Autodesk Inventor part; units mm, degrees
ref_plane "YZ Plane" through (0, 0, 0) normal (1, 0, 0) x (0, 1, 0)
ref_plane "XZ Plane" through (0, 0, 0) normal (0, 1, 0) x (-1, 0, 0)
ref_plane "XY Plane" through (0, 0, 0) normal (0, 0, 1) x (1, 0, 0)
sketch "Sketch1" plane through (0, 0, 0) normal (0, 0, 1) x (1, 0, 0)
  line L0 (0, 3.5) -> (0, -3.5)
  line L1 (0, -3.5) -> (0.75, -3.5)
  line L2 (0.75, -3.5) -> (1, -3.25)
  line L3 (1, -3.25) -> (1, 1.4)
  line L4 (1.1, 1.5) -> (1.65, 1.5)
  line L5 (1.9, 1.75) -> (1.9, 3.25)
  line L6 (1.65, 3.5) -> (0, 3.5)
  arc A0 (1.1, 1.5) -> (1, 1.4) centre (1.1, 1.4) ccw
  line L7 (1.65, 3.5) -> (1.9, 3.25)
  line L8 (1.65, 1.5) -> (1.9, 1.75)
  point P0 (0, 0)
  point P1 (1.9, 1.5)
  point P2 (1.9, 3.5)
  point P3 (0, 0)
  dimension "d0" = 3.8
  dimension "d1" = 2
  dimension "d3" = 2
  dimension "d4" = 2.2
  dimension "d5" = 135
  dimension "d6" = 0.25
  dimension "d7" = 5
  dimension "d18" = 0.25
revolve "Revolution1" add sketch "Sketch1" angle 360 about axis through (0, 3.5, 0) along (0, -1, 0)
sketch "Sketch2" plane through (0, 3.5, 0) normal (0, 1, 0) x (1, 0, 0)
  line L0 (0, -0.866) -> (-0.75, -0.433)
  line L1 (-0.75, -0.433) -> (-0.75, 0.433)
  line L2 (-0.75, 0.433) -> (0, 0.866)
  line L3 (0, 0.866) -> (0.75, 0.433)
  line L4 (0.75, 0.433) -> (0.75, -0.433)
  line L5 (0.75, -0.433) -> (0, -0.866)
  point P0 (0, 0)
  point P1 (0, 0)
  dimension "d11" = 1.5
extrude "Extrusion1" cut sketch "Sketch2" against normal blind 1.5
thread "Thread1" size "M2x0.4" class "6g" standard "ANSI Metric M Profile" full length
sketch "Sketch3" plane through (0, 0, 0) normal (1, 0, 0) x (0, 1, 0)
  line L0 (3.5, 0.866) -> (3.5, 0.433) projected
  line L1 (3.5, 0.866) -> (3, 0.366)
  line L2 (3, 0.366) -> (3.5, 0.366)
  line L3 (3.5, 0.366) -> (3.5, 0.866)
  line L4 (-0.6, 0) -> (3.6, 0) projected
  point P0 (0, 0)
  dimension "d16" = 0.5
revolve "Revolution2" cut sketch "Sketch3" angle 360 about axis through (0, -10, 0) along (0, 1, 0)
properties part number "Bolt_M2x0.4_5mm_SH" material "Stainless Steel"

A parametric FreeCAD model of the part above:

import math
import FreeCAD as App
import Part
import Sketcher

V = App.Vector
Q = App.Units.Quantity

doc = App.newDocument("Part")
body = doc.addObject("PartDesign::Body", "Body")

# Sketch on XY plane
sketch1 = doc.addObject("Sketcher::SketchObject", "Sketch")
body.addObject(sketch1)
sketch1.AttachmentSupport = (doc.XY_Plane, [""])
sketch1.MapMode = "FlatFace"
sketch1.addGeometry([
    Part.LineSegment(V(1.65, 3.5, 0), V(0, 3.5, 0)),  # 0
    Part.LineSegment(V(0, 3.5, 0), V(0, -3.5, 0)),  # 1
    Part.LineSegment(V(0, -3.5, 0), V(0.75, -3.5, 0)),  # 2
    Part.LineSegment(V(0.75, -3.5, 0), V(1, -3.25, 0)),  # 3
    Part.LineSegment(V(1, -3.25, 0), V(1, 1.4, 0)),  # 4
    Part.ArcOfCircle(Part.Circle(V(1.1, 1.4, 0), V(0, 0, 1), 0.1), math.radians(90), math.radians(180)),  # 5
    Part.LineSegment(V(1.1, 1.5, 0), V(1.65, 1.5, 0)),  # 6
    Part.LineSegment(V(1.65, 1.5, 0), V(1.9, 1.75, 0)),  # 7
    Part.LineSegment(V(1.9, 1.75, 0), V(1.9, 3.25, 0)),  # 8
    Part.LineSegment(V(1.9, 3.25, 0), V(1.65, 3.5, 0)),  # 9
], False)
sketch1.addConstraint([
    Sketcher.Constraint("Coincident", 0, 2, 1, 1),
    Sketcher.Constraint("Coincident", 1, 2, 2, 1),
    Sketcher.Constraint("Coincident", 2, 2, 3, 1),
    Sketcher.Constraint("Coincident", 3, 2, 4, 1),
    Sketcher.Constraint("Tangent", 4, 2, 5, 2),
    Sketcher.Constraint("Tangent", 5, 1, 6, 1),
    Sketcher.Constraint("Coincident", 6, 2, 7, 1),
    Sketcher.Constraint("Coincident", 7, 2, 8, 1),
    Sketcher.Constraint("Coincident", 8, 2, 9, 1),
    Sketcher.Constraint("Coincident", 9, 2, 0, 1),
    Sketcher.Constraint("Horizontal", 0),
    Sketcher.Constraint("Vertical", 1),
    Sketcher.Constraint("Horizontal", 2),
    Sketcher.Constraint("Vertical", 4),
    Sketcher.Constraint("Horizontal", 6),
    Sketcher.Constraint("Vertical", 8),
    Sketcher.Constraint("Symmetric", 0, 2, 1, 2, -1, 1),
    Sketcher.Constraint("Parallel", 3, 7),
    Sketcher.Constraint("Perpendicular", 7, 9),
    Sketcher.Constraint("Vertical", 6, 2, 9, 2),
    Sketcher.Constraint("Equal", 3, 7),
    Sketcher.Constraint("Equal", 7, 9),
    Sketcher.Constraint("DistanceY", 5, 1, 0, 2, 2.0),
    Sketcher.Constraint("DistanceY", 2, 2, 5, 1, 5.0),
    Sketcher.Constraint("Radius", 5, 0.1),
    Sketcher.Constraint("DistanceX", 2, 2, 3, 2, 0.25),
    Sketcher.Constraint("DistanceX", -1, 1, 3, 2, 1.0),
    Sketcher.Constraint("DistanceX", 0, 2, 0, 1, 1.65),
])
revolution = doc.addObject("PartDesign::Revolution", "Revolution")
body.addObject(revolution)
revolution.Profile = sketch1
revolution.ReferenceAxis = (sketch1, ["V_Axis"])
revolution.Angle = 360

# Sketch on XZ plane
sketch2 = doc.addObject("Sketcher::SketchObject", "Sketch001")
body.addObject(sketch2)
sketch2.AttachmentSupport = (doc.XZ_Plane, [""])
sketch2.MapMode = "FlatFace"
sketch2.AttachmentOffset = App.Placement(V(0, 0, -3.5), App.Rotation())
sketch2.addGeometry([
    Part.LineSegment(V(-0.8, 0.4, 0), V(0, 0.9, 0)),  # 0
    Part.LineSegment(V(0, 0.9, 0), V(0.8, 0.4, 0)),  # 1
    Part.LineSegment(V(0.8, 0.4, 0), V(0.8, -0.4, 0)),  # 2
    Part.LineSegment(V(0.8, -0.4, 0), V(0, -0.9, 0)),  # 3
    Part.LineSegment(V(0, -0.9, 0), V(-0.8, -0.4, 0)),  # 4
    Part.LineSegment(V(-0.8, -0.4, 0), V(-0.8, 0.4, 0)),  # 5
], False)
sketch2.addConstraint([
    Sketcher.Constraint("Coincident", 0, 2, 1, 1),
    Sketcher.Constraint("Coincident", 1, 2, 2, 1),
    Sketcher.Constraint("Coincident", 2, 2, 3, 1),
    Sketcher.Constraint("Coincident", 3, 2, 4, 1),
    Sketcher.Constraint("Coincident", 4, 2, 5, 1),
    Sketcher.Constraint("Coincident", 5, 2, 0, 1),
    Sketcher.Constraint("Vertical", 2),
    Sketcher.Constraint("Vertical", 5),
    Sketcher.Constraint("Symmetric", 0, 2, 3, 2, -1, 1),
    Sketcher.Constraint("Symmetric", 1, 2, 4, 2, -1, 1),
    Sketcher.Constraint("PointOnObject", 0, 2, -2),
    Sketcher.Constraint("Parallel", 0, 3),
    Sketcher.Constraint("Horizontal", 2, 2, 4, 2),
    Sketcher.Constraint("DistanceX", 4, 2, 2, 2, 1.5),
    Sketcher.Constraint("Angle", 0, Q("29.9993 deg")),
    Sketcher.Constraint("DistanceY", 2, 2, 2, 1, 0.866),
])
pocket1 = doc.addObject("PartDesign::Pocket", "Pocket")
body.addObject(pocket1)
pocket1.Profile = sketch2
pocket1.Length = 1.5
pocket1.Reversed = True

# Sketch on YZ plane
sketch3 = doc.addObject("Sketcher::SketchObject", "Sketch002")
body.addObject(sketch3)
sketch3.AttachmentSupport = (doc.YZ_Plane, [""])
sketch3.MapMode = "FlatFace"
sketch3.addGeometry([
    Part.LineSegment(V(3.5, 0.4, 0), V(3.5, 0.9, 0)),
    Part.LineSegment(V(3.5, 0.9, 0), V(3, 0.4, 0)),
    Part.LineSegment(V(3, 0.4, 0), V(3.5, 0.4, 0)),
], False)
sketch3.addConstraint([
    Sketcher.Constraint("Coincident", 0, 2, 1, 1),
    Sketcher.Constraint("Coincident", 1, 2, 2, 1),
    Sketcher.Constraint("Coincident", 2, 2, 0, 1),
    Sketcher.Constraint("Vertical", 0),
    Sketcher.Constraint("Horizontal", 2),
    Sketcher.Constraint("Equal", 2, 0),
    Sketcher.Constraint("DistanceX", 2, 1, 2, 2, 0.5),
    Sketcher.Constraint("DistanceX", -1, 1, 1, 2, 3.0),
    Sketcher.Constraint("DistanceY", -1, 1, 0, 2, 0.866),
])
groove = doc.addObject("PartDesign::Groove", "Groove")
body.addObject(groove)
groove.Profile = sketch3
groove.ReferenceAxis = (sketch3, ["H_Axis"])
groove.Angle = 360

doc.recompute()
